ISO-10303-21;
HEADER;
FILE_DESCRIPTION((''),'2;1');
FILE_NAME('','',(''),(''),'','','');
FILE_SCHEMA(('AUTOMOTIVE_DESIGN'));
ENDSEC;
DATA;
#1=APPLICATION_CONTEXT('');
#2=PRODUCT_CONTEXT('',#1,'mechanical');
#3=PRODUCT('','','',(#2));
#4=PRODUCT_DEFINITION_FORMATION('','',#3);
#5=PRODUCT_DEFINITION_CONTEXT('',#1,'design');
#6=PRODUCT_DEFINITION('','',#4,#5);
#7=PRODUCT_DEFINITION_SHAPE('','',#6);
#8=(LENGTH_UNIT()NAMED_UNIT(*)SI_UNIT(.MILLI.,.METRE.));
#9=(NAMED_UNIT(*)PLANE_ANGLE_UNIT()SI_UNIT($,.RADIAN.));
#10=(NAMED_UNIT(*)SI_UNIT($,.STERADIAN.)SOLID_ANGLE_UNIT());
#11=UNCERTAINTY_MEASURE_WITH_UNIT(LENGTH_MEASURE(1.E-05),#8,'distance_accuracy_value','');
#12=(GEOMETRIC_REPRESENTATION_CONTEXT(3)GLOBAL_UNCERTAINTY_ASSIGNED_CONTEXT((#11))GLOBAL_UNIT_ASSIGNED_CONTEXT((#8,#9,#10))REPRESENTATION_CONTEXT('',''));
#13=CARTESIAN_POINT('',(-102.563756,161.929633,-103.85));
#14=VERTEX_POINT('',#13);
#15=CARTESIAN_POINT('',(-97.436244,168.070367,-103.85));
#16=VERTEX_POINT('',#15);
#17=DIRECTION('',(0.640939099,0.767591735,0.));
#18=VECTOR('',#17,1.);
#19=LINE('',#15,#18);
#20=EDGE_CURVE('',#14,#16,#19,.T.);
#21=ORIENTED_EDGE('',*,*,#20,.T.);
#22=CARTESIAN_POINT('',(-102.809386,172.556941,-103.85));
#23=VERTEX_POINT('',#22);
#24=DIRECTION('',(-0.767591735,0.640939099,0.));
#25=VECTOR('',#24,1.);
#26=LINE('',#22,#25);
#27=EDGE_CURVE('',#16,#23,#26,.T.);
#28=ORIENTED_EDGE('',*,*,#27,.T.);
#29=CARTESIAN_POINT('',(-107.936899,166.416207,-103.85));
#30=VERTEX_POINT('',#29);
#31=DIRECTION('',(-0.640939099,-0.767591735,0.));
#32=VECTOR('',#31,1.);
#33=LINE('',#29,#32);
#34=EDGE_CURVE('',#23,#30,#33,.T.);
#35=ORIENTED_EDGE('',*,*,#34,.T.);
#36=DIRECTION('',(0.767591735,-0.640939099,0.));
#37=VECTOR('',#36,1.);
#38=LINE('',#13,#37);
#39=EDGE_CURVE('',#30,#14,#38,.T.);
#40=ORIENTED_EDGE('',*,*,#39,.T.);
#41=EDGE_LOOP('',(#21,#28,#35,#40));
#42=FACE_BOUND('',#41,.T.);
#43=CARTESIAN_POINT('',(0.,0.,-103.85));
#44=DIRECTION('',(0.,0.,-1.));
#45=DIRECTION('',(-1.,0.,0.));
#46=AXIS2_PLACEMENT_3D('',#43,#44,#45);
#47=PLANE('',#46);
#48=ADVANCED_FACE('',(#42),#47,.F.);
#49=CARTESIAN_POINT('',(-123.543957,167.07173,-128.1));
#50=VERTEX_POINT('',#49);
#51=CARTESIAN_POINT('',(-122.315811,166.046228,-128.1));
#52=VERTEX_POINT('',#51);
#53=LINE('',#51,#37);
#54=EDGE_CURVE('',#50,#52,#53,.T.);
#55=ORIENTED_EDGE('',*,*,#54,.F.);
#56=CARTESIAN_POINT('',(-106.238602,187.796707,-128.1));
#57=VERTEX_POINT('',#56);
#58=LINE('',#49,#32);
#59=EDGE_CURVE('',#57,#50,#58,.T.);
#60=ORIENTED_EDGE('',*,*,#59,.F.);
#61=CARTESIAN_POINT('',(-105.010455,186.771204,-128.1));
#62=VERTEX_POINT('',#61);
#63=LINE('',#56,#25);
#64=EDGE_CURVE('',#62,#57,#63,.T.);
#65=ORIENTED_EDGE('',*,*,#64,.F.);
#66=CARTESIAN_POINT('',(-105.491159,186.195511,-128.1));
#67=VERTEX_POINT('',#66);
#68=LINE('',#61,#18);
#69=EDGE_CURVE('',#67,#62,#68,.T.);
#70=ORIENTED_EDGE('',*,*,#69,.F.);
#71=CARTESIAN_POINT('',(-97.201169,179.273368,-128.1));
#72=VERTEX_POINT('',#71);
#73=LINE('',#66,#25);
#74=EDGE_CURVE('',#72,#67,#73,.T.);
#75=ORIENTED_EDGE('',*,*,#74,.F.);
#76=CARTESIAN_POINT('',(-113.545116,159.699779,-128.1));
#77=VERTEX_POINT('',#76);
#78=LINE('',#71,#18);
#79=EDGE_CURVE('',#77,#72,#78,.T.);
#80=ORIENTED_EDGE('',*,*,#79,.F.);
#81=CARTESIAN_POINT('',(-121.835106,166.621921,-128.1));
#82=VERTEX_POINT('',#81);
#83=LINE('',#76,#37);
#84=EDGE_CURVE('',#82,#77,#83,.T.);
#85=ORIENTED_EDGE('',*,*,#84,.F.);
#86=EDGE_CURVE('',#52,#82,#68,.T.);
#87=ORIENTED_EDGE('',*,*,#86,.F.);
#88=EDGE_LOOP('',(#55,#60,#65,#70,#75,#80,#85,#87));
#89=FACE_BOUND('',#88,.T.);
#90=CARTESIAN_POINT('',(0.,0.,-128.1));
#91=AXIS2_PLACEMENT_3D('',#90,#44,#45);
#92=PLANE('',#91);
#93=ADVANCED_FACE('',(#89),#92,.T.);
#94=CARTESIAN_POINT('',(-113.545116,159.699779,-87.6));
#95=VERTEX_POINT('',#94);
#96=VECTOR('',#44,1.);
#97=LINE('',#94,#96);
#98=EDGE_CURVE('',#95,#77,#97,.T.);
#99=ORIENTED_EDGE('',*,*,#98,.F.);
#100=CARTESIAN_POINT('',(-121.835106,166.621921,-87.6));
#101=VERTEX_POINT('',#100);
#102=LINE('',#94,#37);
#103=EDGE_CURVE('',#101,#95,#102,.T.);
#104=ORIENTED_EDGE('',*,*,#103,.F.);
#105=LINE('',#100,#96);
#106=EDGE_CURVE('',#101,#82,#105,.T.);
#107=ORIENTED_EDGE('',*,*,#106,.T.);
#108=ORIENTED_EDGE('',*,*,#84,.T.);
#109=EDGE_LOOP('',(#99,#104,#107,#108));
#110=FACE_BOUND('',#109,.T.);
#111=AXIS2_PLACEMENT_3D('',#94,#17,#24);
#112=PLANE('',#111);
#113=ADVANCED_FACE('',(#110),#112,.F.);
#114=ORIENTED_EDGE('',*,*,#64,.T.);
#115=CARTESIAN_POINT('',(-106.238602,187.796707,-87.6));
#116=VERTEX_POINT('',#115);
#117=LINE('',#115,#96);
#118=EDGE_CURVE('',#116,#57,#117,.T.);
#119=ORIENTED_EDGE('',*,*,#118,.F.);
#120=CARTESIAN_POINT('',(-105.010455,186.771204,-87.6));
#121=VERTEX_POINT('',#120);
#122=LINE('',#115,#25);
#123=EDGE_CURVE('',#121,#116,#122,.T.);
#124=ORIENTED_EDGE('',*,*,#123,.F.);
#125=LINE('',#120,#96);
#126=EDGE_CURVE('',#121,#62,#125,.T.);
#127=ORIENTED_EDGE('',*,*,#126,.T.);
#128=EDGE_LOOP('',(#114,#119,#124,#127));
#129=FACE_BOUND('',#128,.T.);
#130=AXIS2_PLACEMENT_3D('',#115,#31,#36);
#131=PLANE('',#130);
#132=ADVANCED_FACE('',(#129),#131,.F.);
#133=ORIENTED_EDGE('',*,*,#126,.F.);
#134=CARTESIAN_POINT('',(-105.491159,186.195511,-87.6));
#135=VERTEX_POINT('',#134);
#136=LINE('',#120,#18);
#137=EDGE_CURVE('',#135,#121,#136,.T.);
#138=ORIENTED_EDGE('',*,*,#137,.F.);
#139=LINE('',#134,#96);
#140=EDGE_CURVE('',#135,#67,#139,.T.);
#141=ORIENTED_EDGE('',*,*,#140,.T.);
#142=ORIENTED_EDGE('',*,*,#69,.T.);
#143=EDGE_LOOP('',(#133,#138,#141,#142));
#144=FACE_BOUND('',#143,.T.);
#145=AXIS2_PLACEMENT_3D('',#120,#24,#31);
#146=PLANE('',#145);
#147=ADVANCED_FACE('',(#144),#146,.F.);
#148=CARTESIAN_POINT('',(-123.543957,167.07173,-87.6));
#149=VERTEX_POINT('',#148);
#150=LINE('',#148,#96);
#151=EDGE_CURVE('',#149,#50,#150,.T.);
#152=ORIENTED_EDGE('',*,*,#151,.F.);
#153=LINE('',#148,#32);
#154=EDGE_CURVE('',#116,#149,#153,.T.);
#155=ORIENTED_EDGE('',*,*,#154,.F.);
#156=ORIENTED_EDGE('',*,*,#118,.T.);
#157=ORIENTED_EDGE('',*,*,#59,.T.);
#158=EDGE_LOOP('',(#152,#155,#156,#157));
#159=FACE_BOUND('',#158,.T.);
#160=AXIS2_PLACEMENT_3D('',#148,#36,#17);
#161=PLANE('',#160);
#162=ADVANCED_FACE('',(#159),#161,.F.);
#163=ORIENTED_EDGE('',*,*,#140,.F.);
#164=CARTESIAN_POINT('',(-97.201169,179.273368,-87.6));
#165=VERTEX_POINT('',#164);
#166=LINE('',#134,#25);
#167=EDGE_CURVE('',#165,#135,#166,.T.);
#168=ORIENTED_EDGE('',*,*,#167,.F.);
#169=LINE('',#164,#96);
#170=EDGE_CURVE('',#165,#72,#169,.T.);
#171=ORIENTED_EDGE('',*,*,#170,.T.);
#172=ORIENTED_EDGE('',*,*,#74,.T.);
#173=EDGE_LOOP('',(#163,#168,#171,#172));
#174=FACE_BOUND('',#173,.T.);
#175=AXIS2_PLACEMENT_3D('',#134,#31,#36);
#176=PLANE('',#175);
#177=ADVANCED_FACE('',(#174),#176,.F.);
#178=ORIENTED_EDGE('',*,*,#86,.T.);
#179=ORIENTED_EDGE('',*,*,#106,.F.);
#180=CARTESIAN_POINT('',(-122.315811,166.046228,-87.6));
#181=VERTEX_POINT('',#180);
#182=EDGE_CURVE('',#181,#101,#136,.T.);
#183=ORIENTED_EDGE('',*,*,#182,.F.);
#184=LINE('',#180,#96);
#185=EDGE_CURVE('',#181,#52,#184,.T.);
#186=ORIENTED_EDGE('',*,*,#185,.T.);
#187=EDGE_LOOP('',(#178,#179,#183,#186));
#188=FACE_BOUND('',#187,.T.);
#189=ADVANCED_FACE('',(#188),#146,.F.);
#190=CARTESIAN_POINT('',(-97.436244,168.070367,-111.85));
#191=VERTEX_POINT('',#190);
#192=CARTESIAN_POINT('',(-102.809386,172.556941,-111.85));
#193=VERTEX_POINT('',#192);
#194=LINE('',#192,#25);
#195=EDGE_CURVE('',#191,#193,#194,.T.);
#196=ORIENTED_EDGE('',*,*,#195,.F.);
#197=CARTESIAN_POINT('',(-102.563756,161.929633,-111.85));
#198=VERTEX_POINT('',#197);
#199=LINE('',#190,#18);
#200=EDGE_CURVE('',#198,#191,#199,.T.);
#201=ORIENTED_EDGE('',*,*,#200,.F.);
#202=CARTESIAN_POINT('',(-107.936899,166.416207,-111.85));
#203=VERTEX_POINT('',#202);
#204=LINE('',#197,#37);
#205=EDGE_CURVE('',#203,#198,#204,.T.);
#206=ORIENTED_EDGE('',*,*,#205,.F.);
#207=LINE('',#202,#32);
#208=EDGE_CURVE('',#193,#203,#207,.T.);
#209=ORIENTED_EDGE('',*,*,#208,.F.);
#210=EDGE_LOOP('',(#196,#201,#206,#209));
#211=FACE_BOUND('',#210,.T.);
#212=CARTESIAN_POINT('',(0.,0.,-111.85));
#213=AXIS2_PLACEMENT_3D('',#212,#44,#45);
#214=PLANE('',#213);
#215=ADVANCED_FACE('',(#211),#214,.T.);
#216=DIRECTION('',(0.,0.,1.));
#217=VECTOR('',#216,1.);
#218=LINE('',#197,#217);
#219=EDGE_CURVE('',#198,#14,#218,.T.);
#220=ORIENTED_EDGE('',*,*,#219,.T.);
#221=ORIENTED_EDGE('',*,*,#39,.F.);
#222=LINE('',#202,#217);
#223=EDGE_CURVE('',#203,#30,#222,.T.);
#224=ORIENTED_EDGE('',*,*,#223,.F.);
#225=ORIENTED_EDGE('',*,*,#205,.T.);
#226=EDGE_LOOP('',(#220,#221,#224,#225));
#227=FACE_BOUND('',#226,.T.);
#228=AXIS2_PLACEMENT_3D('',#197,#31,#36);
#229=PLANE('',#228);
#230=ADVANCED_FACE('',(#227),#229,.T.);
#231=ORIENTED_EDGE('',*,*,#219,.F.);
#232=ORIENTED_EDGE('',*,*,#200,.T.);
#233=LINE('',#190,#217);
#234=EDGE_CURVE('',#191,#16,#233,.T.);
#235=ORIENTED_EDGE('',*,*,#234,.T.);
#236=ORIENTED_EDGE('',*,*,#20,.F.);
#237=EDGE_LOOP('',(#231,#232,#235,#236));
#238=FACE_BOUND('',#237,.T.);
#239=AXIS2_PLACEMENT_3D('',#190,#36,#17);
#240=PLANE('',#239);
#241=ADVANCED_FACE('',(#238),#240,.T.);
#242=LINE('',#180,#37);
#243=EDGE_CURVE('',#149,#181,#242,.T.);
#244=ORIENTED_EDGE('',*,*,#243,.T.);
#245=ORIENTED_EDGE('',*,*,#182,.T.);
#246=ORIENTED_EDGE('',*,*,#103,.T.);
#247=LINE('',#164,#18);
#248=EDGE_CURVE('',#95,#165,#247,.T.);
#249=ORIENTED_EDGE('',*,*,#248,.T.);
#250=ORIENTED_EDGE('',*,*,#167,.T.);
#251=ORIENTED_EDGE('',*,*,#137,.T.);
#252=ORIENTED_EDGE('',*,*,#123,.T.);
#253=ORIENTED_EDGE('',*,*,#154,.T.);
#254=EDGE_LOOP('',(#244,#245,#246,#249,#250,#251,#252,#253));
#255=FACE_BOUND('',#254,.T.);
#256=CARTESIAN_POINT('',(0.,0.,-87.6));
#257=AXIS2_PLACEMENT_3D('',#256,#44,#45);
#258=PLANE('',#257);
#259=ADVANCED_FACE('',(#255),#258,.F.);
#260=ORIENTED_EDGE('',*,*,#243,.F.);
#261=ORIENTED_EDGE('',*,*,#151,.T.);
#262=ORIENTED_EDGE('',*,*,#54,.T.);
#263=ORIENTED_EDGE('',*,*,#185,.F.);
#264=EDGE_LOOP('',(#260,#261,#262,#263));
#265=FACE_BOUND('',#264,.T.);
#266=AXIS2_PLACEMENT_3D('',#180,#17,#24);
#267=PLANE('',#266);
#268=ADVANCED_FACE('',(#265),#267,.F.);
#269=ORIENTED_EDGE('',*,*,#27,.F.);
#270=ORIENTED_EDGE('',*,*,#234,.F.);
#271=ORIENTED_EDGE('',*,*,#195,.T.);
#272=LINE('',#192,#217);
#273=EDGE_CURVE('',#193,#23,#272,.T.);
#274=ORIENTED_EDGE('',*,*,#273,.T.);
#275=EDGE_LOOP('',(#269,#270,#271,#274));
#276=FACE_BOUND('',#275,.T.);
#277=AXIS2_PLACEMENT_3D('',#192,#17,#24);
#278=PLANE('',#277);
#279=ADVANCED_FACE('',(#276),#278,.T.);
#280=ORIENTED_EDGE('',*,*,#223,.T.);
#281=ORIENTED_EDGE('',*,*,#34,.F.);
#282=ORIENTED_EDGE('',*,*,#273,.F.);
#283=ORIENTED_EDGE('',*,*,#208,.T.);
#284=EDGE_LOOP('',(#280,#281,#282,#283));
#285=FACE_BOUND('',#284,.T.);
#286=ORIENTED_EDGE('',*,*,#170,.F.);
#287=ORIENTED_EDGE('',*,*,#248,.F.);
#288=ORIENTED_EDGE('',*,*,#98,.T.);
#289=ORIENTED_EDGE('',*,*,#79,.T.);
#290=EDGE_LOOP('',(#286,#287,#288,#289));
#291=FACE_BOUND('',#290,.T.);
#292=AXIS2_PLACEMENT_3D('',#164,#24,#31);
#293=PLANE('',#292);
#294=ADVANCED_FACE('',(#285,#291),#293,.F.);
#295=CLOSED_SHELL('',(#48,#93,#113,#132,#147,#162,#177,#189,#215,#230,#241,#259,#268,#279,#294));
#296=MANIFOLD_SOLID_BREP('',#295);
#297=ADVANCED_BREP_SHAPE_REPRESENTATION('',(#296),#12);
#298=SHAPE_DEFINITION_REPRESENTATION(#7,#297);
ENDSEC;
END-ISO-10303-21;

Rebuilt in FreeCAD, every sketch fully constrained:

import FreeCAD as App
import Part
import Sketcher


def add_polygon(sketch, points):
    """Adds a closed chain of lines whose ends are joined by coincident constraints."""
    first, n = sketch.GeometryCount, len(points)
    for a, b in zip(points, points[1:] + points[:1]):
        sketch.addGeometry(Part.LineSegment(App.Vector(*a, 0), App.Vector(*b, 0)), False)
    for i in range(n):
        sketch.addConstraint(Sketcher.Constraint("Coincident", first + i, 2, first + (i + 1) % n, 1))

doc = App.newDocument("Part")
body = doc.addObject("PartDesign::Body", "Body")

sketch1 = doc.addObject("Sketcher::SketchObject", "Sketch")
body.addObject(sketch1)
sketch1.AttachmentSupport = (doc.XY_Plane, [""])
sketch1.MapMode = "FlatFace"
sketch1.AttachmentOffset = App.Placement(App.Vector(0, 0, -128.1), App.Rotation())
add_polygon(sketch1, [(-106.2, 187.8), (-123.5, 167.1), (-122.3, 166), (-105, 186.8)])
sketch1.addConstraint([
    Sketcher.Constraint("Perpendicular", 0, 1),
    Sketcher.Constraint("Perpendicular", 1, 2),
    Sketcher.Constraint("Perpendicular", 2, 3),
    Sketcher.Constraint("Distance", 0, 27.0),
    Sketcher.Constraint("Distance", 1, 1.6),
    Sketcher.Constraint("DistanceX", 3, 2, -1, 1, 106.238602),
    Sketcher.Constraint("DistanceY", -1, 1, 0, 2, 167.07173),
    Sketcher.Constraint("DistanceX", 1, 2, -1, 1, 122.315811),
])
pad1 = doc.addObject("PartDesign::Pad", "Pad")
body.addObject(pad1)
pad1.Profile = sketch1
pad1.Length = 40.5

sketch2 = doc.addObject("Sketcher::SketchObject", "Sketch001")
body.addObject(sketch2)
sketch2.AttachmentSupport = (doc.XY_Plane, [""])
sketch2.MapMode = "FlatFace"
sketch2.AttachmentOffset = App.Placement(App.Vector(0, 0, -128.1), App.Rotation())
add_polygon(sketch2, [(-105, 186), (-122, 167), (-114, 160), (-97, 179)])
sketch2.addConstraint([
    Sketcher.Constraint("Perpendicular", 0, 1),
    Sketcher.Constraint("Perpendicular", 1, 2),
    Sketcher.Constraint("Perpendicular", 2, 3),
    Sketcher.Constraint("Distance", 0, 25.5),
    Sketcher.Constraint("Distance", 1, 10.8),
    Sketcher.Constraint("DistanceY", -1, 1, 0, 2, 166.621921),
    Sketcher.Constraint("DistanceY", -1, 1, 1, 2, 159.699779),
    Sketcher.Constraint("DistanceX", 2, 2, -1, 1, 97.201169),
])
pad2 = doc.addObject("PartDesign::Pad", "Pad001")
body.addObject(pad2)
pad2.Profile = sketch2
pad2.Length = 40.5

sketch3 = doc.addObject("Sketcher::SketchObject", "Sketch002")
body.addObject(sketch3)
sketch3.AttachmentSupport = (doc.XY_Plane, [""])
sketch3.MapMode = "FlatFace"
sketch3.AttachmentOffset = App.Placement(App.Vector(0, 0, -103.85), App.Rotation())
add_polygon(sketch3, [(-103, 173), (-108, 166), (-103, 162), (-97, 168)])
sketch3.addConstraint([
    Sketcher.Constraint("Perpendicular", 0, 1),
    Sketcher.Constraint("Perpendicular", 1, 2),
    Sketcher.Constraint("Perpendicular", 2, 3),
    Sketcher.Constraint("Distance", 0, 8.0),
    Sketcher.Constraint("Distance", 1, 7.0),
    Sketcher.Constraint("DistanceX", 0, 2, -1, 1, 107.936899),
    Sketcher.Constraint("DistanceY", -1, 1, 3, 2, 172.556941),
    Sketcher.Constraint("DistanceY", 0, 2, 2, 2, 1.65416),
])
pad3 = doc.addObject("PartDesign::Pad", "Pad002")
body.addObject(pad3)
pad3.Profile = sketch3
pad3.Length = 8
pad3.Reversed = True

doc.recompute()
